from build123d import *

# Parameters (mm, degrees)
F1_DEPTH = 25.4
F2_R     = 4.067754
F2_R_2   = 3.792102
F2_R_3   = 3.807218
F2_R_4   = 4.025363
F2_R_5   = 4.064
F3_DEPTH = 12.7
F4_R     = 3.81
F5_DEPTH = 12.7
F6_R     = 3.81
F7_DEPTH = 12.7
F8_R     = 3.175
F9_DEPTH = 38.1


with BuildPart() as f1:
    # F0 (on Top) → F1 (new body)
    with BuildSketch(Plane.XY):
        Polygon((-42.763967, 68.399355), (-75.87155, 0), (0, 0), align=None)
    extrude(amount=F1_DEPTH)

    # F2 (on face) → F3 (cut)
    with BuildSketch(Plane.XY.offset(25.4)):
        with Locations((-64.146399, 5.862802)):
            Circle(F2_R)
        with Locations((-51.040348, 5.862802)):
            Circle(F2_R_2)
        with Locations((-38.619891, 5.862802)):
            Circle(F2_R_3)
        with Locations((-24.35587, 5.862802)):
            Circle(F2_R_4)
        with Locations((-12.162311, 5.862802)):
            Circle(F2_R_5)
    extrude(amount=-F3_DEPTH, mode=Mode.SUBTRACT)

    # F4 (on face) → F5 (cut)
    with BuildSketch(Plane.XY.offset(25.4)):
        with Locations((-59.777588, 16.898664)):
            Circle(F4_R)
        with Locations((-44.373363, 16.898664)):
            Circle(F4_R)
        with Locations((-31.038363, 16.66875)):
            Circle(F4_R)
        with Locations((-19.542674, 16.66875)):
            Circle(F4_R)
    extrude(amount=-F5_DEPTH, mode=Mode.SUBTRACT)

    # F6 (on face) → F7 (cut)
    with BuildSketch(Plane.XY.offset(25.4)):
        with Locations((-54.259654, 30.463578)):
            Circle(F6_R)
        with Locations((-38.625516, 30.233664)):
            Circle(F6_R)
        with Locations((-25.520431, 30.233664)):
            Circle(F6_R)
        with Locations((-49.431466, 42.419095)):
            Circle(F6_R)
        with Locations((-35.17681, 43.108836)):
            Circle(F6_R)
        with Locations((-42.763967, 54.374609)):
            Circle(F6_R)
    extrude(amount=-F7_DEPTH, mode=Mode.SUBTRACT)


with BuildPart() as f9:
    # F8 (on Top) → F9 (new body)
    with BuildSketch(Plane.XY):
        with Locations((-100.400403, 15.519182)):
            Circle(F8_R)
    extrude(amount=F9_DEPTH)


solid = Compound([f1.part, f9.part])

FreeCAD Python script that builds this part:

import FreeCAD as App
import Part
import Sketcher
from FreeCAD import Vector
Q = App.Units.Quantity


def add_polygon(sketch, points):
    """Adds a closed chain of lines whose ends are joined by coincident constraints."""
    first, n = sketch.GeometryCount, len(points)
    for a, b in zip(points, points[1:] + points[:1]):
        sketch.addGeometry(Part.LineSegment(App.Vector(*a, 0), App.Vector(*b, 0)), False)
    for i in range(n):
        sketch.addConstraint(Sketcher.Constraint("Coincident", first + i, 2, first + (i + 1) % n, 1))

doc = App.newDocument("Part")
body = doc.addObject("PartDesign::Body", "Body")

# Sketch on XY plane
sketch1 = doc.addObject("Sketcher::SketchObject", "Sketch")
body.addObject(sketch1)
sketch1.AttachmentSupport = (doc.XY_Plane, [""])
sketch1.MapMode = "FlatFace"
add_polygon(sketch1, [(-42.763967, 68.399355), (-75.87155, 0), (0, 0)])  # lines 0-2
sketch1.addConstraint(Sketcher.Constraint("Horizontal", 1))
sketch1.addConstraint(Sketcher.Constraint("Coincident", 1, 2, -1, 1))
sketch1.addConstraint(Sketcher.Constraint("DistanceX", 1, 1, 1, 2, Q("75.87155 mm")))
sketch1.addConstraint(Sketcher.Constraint("Distance", 0, Q("75.990682 mm")))
sketch1.addConstraint(Sketcher.Constraint("Distance", 2, Q("80.667395 mm")))
pad1 = doc.addObject("PartDesign::Pad", "Pad")
body.addObject(pad1)
pad1.Profile = sketch1
pad1.Length = Q("1 in")

# Sketch on XY plane
sketch2 = doc.addObject("Sketcher::SketchObject", "Sketch001")
body.addObject(sketch2)
sketch2.AttachmentSupport = (doc.XY_Plane, [""])
sketch2.MapMode = "FlatFace"
sketch2.AttachmentOffset = App.Placement(Vector(0, 0, 1 * 25.4), App.Rotation())
sketch2.addGeometry(Part.Circle(Vector(-64.146399, 5.862802, 0), Vector(0, 0, 1), 4.067754), False)
sketch2.addGeometry(Part.Circle(Vector(-51.040348, 5.862802, 0), Vector(0, 0, 1), 3.792102), False)
sketch2.addGeometry(Part.Circle(Vector(-38.619891, 5.862802, 0), Vector(0, 0, 1), 3.807218), False)
sketch2.addGeometry(Part.Circle(Vector(-24.35587, 5.862802, 0), Vector(0, 0, 1), 4.025363), False)
sketch2.addGeometry(Part.Circle(Vector(-12.162311, 5.862802, 0), Vector(0, 0, 1), 4.064), False)
sketch2.addConstraint(Sketcher.Constraint("Horizontal", 0, 3, 1, 3))
sketch2.addConstraint(Sketcher.Constraint("Horizontal", 1, 3, 2, 3))
sketch2.addConstraint(Sketcher.Constraint("Horizontal", 2, 3, 3, 3))
sketch2.addConstraint(Sketcher.Constraint("Horizontal", 3, 3, 4, 3))
sketch2.addConstraint(Sketcher.Constraint("Diameter", 4, Q("0.32 in")))
sketch2.addConstraint(Sketcher.Constraint("Diameter", 0, Q("8.135508 mm")))
sketch2.addConstraint(Sketcher.Constraint("Diameter", 1, Q("7.584204 mm")))
sketch2.addConstraint(Sketcher.Constraint("Diameter", 2, Q("7.614436 mm")))
sketch2.addConstraint(Sketcher.Constraint("Diameter", 3, Q("8.050726 mm")))
sketch2.addConstraint(Sketcher.Constraint("DistanceX", 0, 3, -1, 1, Q("64.146399 mm")))
sketch2.addConstraint(Sketcher.Constraint("DistanceX", 1, 3, -1, 1, Q("51.040348 mm")))
sketch2.addConstraint(Sketcher.Constraint("DistanceX", 2, 3, -1, 1, Q("38.619891 mm")))
sketch2.addConstraint(Sketcher.Constraint("DistanceX", 3, 3, -1, 1, Q("24.35587 mm")))
sketch2.addConstraint(Sketcher.Constraint("DistanceX", 4, 3, -1, 1, Q("12.162311 mm")))
sketch2.addConstraint(Sketcher.Constraint("DistanceY", -1, 1, 0, 3, Q("5.862802 mm")))
pocket1 = doc.addObject("PartDesign::Pocket", "Pocket")
body.addObject(pocket1)
pocket1.Profile = sketch2
pocket1.Length = Q("0.5 in")

# Sketch on XY plane
sketch3 = doc.addObject("Sketcher::SketchObject", "Sketch002")
body.addObject(sketch3)
sketch3.AttachmentSupport = (doc.XY_Plane, [""])
sketch3.MapMode = "FlatFace"
sketch3.AttachmentOffset = App.Placement(Vector(0, 0, 1 * 25.4), App.Rotation())
sketch3.addGeometry(Part.Circle(Vector(-59.777588, 16.898664, 0), Vector(0, 0, 1), 3.81), False)
sketch3.addGeometry(Part.Circle(Vector(-44.373363, 16.898664, 0), Vector(0, 0, 1), 3.81), False)
sketch3.addGeometry(Part.Circle(Vector(-31.038363, 16.66875, 0), Vector(0, 0, 1), 3.81), False)
sketch3.addGeometry(Part.Circle(Vector(-19.542674, 16.66875, 0), Vector(0, 0, 1), 3.81), False)
sketch3.addConstraint(Sketcher.Constraint("Equal", 0, 1))
sketch3.addConstraint(Sketcher.Constraint("Equal", 1, 2))
sketch3.addConstraint(Sketcher.Constraint("Equal", 2, 3))
sketch3.addConstraint(Sketcher.Constraint("Horizontal", 0, 3, 1, 3))
sketch3.addConstraint(Sketcher.Constraint("Horizontal", 2, 3, 3, 3))
sketch3.addConstraint(Sketcher.Constraint("Diameter", 0, Q("0.3 in")))
sketch3.addConstraint(Sketcher.Constraint("DistanceY", -1, 1, 2, 3, Q("0.65625 in")))
sketch3.addConstraint(Sketcher.Constraint("DistanceX", 1, 3, 2, 3, Q("0.525 in")))
sketch3.addConstraint(Sketcher.Constraint("DistanceX", 0, 3, -1, 1, Q("59.777588 mm")))
sketch3.addConstraint(Sketcher.Constraint("DistanceX", 2, 3, 3, 3, Q("11.495689 mm")))
sketch3.addConstraint(Sketcher.Constraint("DistanceY", -1, 1, 0, 3, Q("16.898664 mm")))
sketch3.addConstraint(Sketcher.Constraint("DistanceX", 1, 3, -1, 1, Q("44.373363 mm")))
pocket2 = doc.addObject("PartDesign::Pocket", "Pocket001")
body.addObject(pocket2)
pocket2.Profile = sketch3
pocket2.Length = Q("0.5 in")

# Sketch on XY plane
sketch4 = doc.addObject("Sketcher::SketchObject", "Sketch003")
body.addObject(sketch4)
sketch4.AttachmentSupport = (doc.XY_Plane, [""])
sketch4.MapMode = "FlatFace"
sketch4.AttachmentOffset = App.Placement(Vector(0, 0, 1 * 25.4), App.Rotation())
sketch4.addGeometry(Part.Circle(Vector(-54.259654, 30.463578, 0), Vector(0, 0, 1), 3.81), False)
sketch4.addGeometry(Part.Circle(Vector(-38.625516, 30.233664, 0), Vector(0, 0, 1), 3.81), False)
sketch4.addGeometry(Part.Circle(Vector(-25.520431, 30.233664, 0), Vector(0, 0, 1), 3.81), False)
sketch4.addGeometry(Part.Circle(Vector(-49.431466, 42.419095, 0), Vector(0, 0, 1), 3.81), False)
sketch4.addGeometry(Part.Circle(Vector(-35.17681, 43.108836, 0), Vector(0, 0, 1), 3.81), False)
sketch4.addGeometry(Part.Circle(Vector(-42.763967, 54.374609, 0), Vector(0, 0, 1), 3.81), False)
sketch4.addConstraint(Sketcher.Constraint("Equal", 0, 1))
sketch4.addConstraint(Sketcher.Constraint("Equal", 1, 2))
sketch4.addConstraint(Sketcher.Constraint("Equal", 2, 3))
sketch4.addConstraint(Sketcher.Constraint("Equal", 3, 4))
sketch4.addConstraint(Sketcher.Constraint("Equal", 4, 5))
sketch4.addConstraint(Sketcher.Constraint("Horizontal", 1, 3, 2, 3))
sketch4.addConstraint(Sketcher.Constraint("Diameter", 0, Q("0.3 in")))
sketch4.addConstraint(Sketcher.Constraint("DistanceX", 3, 3, 5, 3, Q("0.2625 in")))
sketch4.addConstraint(Sketcher.Constraint("DistanceX", 2, 3, -1, 1, Q("25.520431 mm")))
sketch4.addConstraint(Sketcher.Constraint("DistanceX", 4, 3, -1, 1, Q("35.17681 mm")))
sketch4.addConstraint(Sketcher.Constraint("DistanceY", -1, 1, 5, 3, Q("54.374609 mm")))
sketch4.addConstraint(Sketcher.Constraint("DistanceX", 3, 3, 1, 3, Q("10.80595 mm")))
sketch4.addConstraint(Sketcher.Constraint("DistanceY", 1, 3, 3, 3, Q("12.185431 mm")))
sketch4.addConstraint(Sketcher.Constraint("DistanceY", 1, 3, 4, 3, Q("12.875172 mm")))
sketch4.addConstraint(Sketcher.Constraint("DistanceY", 0, 3, 5, 3, Q("23.911031 mm")))
sketch4.addConstraint(Sketcher.Constraint("DistanceX", 0, 3, -1, 1, Q("54.259654 mm")))
sketch4.addConstraint(Sketcher.Constraint("DistanceX", 1, 3, -1, 1, Q("38.625516 mm")))
sketch4.addConstraint(Sketcher.Constraint("DistanceY", -1, 1, 1, 3, Q("30.233664 mm")))
pocket3 = doc.addObject("PartDesign::Pocket", "Pocket002")
body.addObject(pocket3)
pocket3.Profile = sketch4
pocket3.Length = Q("0.5 in")
body2 = doc.addObject("PartDesign::Body", "Body001")

# Sketch on XY plane
sketch5 = doc.addObject("Sketcher::SketchObject", "Sketch004")
body2.addObject(sketch5)
sketch5.AttachmentSupport = (doc.getObject("XY_Plane001"), [""])
sketch5.MapMode = "FlatFace"
sketch5.addGeometry(Part.Circle(Vector(-100.400403, 15.519182, 0), Vector(0, 0, 1), 3.175), False)
sketch5.addConstraint(Sketcher.Constraint("Diameter", 0, Q("0.25 in")))
sketch5.addConstraint(Sketcher.Constraint("DistanceX", 0, 3, -1, 1, Q("100.400403 mm")))
sketch5.addConstraint(Sketcher.Constraint("DistanceY", -1, 1, 0, 3, Q("15.519182 mm")))
pad2 = doc.addObject("PartDesign::Pad", "Pad001")
body2.addObject(pad2)
pad2.Profile = sketch5
pad2.Length = Q("1.5 in")

doc.recompute()
